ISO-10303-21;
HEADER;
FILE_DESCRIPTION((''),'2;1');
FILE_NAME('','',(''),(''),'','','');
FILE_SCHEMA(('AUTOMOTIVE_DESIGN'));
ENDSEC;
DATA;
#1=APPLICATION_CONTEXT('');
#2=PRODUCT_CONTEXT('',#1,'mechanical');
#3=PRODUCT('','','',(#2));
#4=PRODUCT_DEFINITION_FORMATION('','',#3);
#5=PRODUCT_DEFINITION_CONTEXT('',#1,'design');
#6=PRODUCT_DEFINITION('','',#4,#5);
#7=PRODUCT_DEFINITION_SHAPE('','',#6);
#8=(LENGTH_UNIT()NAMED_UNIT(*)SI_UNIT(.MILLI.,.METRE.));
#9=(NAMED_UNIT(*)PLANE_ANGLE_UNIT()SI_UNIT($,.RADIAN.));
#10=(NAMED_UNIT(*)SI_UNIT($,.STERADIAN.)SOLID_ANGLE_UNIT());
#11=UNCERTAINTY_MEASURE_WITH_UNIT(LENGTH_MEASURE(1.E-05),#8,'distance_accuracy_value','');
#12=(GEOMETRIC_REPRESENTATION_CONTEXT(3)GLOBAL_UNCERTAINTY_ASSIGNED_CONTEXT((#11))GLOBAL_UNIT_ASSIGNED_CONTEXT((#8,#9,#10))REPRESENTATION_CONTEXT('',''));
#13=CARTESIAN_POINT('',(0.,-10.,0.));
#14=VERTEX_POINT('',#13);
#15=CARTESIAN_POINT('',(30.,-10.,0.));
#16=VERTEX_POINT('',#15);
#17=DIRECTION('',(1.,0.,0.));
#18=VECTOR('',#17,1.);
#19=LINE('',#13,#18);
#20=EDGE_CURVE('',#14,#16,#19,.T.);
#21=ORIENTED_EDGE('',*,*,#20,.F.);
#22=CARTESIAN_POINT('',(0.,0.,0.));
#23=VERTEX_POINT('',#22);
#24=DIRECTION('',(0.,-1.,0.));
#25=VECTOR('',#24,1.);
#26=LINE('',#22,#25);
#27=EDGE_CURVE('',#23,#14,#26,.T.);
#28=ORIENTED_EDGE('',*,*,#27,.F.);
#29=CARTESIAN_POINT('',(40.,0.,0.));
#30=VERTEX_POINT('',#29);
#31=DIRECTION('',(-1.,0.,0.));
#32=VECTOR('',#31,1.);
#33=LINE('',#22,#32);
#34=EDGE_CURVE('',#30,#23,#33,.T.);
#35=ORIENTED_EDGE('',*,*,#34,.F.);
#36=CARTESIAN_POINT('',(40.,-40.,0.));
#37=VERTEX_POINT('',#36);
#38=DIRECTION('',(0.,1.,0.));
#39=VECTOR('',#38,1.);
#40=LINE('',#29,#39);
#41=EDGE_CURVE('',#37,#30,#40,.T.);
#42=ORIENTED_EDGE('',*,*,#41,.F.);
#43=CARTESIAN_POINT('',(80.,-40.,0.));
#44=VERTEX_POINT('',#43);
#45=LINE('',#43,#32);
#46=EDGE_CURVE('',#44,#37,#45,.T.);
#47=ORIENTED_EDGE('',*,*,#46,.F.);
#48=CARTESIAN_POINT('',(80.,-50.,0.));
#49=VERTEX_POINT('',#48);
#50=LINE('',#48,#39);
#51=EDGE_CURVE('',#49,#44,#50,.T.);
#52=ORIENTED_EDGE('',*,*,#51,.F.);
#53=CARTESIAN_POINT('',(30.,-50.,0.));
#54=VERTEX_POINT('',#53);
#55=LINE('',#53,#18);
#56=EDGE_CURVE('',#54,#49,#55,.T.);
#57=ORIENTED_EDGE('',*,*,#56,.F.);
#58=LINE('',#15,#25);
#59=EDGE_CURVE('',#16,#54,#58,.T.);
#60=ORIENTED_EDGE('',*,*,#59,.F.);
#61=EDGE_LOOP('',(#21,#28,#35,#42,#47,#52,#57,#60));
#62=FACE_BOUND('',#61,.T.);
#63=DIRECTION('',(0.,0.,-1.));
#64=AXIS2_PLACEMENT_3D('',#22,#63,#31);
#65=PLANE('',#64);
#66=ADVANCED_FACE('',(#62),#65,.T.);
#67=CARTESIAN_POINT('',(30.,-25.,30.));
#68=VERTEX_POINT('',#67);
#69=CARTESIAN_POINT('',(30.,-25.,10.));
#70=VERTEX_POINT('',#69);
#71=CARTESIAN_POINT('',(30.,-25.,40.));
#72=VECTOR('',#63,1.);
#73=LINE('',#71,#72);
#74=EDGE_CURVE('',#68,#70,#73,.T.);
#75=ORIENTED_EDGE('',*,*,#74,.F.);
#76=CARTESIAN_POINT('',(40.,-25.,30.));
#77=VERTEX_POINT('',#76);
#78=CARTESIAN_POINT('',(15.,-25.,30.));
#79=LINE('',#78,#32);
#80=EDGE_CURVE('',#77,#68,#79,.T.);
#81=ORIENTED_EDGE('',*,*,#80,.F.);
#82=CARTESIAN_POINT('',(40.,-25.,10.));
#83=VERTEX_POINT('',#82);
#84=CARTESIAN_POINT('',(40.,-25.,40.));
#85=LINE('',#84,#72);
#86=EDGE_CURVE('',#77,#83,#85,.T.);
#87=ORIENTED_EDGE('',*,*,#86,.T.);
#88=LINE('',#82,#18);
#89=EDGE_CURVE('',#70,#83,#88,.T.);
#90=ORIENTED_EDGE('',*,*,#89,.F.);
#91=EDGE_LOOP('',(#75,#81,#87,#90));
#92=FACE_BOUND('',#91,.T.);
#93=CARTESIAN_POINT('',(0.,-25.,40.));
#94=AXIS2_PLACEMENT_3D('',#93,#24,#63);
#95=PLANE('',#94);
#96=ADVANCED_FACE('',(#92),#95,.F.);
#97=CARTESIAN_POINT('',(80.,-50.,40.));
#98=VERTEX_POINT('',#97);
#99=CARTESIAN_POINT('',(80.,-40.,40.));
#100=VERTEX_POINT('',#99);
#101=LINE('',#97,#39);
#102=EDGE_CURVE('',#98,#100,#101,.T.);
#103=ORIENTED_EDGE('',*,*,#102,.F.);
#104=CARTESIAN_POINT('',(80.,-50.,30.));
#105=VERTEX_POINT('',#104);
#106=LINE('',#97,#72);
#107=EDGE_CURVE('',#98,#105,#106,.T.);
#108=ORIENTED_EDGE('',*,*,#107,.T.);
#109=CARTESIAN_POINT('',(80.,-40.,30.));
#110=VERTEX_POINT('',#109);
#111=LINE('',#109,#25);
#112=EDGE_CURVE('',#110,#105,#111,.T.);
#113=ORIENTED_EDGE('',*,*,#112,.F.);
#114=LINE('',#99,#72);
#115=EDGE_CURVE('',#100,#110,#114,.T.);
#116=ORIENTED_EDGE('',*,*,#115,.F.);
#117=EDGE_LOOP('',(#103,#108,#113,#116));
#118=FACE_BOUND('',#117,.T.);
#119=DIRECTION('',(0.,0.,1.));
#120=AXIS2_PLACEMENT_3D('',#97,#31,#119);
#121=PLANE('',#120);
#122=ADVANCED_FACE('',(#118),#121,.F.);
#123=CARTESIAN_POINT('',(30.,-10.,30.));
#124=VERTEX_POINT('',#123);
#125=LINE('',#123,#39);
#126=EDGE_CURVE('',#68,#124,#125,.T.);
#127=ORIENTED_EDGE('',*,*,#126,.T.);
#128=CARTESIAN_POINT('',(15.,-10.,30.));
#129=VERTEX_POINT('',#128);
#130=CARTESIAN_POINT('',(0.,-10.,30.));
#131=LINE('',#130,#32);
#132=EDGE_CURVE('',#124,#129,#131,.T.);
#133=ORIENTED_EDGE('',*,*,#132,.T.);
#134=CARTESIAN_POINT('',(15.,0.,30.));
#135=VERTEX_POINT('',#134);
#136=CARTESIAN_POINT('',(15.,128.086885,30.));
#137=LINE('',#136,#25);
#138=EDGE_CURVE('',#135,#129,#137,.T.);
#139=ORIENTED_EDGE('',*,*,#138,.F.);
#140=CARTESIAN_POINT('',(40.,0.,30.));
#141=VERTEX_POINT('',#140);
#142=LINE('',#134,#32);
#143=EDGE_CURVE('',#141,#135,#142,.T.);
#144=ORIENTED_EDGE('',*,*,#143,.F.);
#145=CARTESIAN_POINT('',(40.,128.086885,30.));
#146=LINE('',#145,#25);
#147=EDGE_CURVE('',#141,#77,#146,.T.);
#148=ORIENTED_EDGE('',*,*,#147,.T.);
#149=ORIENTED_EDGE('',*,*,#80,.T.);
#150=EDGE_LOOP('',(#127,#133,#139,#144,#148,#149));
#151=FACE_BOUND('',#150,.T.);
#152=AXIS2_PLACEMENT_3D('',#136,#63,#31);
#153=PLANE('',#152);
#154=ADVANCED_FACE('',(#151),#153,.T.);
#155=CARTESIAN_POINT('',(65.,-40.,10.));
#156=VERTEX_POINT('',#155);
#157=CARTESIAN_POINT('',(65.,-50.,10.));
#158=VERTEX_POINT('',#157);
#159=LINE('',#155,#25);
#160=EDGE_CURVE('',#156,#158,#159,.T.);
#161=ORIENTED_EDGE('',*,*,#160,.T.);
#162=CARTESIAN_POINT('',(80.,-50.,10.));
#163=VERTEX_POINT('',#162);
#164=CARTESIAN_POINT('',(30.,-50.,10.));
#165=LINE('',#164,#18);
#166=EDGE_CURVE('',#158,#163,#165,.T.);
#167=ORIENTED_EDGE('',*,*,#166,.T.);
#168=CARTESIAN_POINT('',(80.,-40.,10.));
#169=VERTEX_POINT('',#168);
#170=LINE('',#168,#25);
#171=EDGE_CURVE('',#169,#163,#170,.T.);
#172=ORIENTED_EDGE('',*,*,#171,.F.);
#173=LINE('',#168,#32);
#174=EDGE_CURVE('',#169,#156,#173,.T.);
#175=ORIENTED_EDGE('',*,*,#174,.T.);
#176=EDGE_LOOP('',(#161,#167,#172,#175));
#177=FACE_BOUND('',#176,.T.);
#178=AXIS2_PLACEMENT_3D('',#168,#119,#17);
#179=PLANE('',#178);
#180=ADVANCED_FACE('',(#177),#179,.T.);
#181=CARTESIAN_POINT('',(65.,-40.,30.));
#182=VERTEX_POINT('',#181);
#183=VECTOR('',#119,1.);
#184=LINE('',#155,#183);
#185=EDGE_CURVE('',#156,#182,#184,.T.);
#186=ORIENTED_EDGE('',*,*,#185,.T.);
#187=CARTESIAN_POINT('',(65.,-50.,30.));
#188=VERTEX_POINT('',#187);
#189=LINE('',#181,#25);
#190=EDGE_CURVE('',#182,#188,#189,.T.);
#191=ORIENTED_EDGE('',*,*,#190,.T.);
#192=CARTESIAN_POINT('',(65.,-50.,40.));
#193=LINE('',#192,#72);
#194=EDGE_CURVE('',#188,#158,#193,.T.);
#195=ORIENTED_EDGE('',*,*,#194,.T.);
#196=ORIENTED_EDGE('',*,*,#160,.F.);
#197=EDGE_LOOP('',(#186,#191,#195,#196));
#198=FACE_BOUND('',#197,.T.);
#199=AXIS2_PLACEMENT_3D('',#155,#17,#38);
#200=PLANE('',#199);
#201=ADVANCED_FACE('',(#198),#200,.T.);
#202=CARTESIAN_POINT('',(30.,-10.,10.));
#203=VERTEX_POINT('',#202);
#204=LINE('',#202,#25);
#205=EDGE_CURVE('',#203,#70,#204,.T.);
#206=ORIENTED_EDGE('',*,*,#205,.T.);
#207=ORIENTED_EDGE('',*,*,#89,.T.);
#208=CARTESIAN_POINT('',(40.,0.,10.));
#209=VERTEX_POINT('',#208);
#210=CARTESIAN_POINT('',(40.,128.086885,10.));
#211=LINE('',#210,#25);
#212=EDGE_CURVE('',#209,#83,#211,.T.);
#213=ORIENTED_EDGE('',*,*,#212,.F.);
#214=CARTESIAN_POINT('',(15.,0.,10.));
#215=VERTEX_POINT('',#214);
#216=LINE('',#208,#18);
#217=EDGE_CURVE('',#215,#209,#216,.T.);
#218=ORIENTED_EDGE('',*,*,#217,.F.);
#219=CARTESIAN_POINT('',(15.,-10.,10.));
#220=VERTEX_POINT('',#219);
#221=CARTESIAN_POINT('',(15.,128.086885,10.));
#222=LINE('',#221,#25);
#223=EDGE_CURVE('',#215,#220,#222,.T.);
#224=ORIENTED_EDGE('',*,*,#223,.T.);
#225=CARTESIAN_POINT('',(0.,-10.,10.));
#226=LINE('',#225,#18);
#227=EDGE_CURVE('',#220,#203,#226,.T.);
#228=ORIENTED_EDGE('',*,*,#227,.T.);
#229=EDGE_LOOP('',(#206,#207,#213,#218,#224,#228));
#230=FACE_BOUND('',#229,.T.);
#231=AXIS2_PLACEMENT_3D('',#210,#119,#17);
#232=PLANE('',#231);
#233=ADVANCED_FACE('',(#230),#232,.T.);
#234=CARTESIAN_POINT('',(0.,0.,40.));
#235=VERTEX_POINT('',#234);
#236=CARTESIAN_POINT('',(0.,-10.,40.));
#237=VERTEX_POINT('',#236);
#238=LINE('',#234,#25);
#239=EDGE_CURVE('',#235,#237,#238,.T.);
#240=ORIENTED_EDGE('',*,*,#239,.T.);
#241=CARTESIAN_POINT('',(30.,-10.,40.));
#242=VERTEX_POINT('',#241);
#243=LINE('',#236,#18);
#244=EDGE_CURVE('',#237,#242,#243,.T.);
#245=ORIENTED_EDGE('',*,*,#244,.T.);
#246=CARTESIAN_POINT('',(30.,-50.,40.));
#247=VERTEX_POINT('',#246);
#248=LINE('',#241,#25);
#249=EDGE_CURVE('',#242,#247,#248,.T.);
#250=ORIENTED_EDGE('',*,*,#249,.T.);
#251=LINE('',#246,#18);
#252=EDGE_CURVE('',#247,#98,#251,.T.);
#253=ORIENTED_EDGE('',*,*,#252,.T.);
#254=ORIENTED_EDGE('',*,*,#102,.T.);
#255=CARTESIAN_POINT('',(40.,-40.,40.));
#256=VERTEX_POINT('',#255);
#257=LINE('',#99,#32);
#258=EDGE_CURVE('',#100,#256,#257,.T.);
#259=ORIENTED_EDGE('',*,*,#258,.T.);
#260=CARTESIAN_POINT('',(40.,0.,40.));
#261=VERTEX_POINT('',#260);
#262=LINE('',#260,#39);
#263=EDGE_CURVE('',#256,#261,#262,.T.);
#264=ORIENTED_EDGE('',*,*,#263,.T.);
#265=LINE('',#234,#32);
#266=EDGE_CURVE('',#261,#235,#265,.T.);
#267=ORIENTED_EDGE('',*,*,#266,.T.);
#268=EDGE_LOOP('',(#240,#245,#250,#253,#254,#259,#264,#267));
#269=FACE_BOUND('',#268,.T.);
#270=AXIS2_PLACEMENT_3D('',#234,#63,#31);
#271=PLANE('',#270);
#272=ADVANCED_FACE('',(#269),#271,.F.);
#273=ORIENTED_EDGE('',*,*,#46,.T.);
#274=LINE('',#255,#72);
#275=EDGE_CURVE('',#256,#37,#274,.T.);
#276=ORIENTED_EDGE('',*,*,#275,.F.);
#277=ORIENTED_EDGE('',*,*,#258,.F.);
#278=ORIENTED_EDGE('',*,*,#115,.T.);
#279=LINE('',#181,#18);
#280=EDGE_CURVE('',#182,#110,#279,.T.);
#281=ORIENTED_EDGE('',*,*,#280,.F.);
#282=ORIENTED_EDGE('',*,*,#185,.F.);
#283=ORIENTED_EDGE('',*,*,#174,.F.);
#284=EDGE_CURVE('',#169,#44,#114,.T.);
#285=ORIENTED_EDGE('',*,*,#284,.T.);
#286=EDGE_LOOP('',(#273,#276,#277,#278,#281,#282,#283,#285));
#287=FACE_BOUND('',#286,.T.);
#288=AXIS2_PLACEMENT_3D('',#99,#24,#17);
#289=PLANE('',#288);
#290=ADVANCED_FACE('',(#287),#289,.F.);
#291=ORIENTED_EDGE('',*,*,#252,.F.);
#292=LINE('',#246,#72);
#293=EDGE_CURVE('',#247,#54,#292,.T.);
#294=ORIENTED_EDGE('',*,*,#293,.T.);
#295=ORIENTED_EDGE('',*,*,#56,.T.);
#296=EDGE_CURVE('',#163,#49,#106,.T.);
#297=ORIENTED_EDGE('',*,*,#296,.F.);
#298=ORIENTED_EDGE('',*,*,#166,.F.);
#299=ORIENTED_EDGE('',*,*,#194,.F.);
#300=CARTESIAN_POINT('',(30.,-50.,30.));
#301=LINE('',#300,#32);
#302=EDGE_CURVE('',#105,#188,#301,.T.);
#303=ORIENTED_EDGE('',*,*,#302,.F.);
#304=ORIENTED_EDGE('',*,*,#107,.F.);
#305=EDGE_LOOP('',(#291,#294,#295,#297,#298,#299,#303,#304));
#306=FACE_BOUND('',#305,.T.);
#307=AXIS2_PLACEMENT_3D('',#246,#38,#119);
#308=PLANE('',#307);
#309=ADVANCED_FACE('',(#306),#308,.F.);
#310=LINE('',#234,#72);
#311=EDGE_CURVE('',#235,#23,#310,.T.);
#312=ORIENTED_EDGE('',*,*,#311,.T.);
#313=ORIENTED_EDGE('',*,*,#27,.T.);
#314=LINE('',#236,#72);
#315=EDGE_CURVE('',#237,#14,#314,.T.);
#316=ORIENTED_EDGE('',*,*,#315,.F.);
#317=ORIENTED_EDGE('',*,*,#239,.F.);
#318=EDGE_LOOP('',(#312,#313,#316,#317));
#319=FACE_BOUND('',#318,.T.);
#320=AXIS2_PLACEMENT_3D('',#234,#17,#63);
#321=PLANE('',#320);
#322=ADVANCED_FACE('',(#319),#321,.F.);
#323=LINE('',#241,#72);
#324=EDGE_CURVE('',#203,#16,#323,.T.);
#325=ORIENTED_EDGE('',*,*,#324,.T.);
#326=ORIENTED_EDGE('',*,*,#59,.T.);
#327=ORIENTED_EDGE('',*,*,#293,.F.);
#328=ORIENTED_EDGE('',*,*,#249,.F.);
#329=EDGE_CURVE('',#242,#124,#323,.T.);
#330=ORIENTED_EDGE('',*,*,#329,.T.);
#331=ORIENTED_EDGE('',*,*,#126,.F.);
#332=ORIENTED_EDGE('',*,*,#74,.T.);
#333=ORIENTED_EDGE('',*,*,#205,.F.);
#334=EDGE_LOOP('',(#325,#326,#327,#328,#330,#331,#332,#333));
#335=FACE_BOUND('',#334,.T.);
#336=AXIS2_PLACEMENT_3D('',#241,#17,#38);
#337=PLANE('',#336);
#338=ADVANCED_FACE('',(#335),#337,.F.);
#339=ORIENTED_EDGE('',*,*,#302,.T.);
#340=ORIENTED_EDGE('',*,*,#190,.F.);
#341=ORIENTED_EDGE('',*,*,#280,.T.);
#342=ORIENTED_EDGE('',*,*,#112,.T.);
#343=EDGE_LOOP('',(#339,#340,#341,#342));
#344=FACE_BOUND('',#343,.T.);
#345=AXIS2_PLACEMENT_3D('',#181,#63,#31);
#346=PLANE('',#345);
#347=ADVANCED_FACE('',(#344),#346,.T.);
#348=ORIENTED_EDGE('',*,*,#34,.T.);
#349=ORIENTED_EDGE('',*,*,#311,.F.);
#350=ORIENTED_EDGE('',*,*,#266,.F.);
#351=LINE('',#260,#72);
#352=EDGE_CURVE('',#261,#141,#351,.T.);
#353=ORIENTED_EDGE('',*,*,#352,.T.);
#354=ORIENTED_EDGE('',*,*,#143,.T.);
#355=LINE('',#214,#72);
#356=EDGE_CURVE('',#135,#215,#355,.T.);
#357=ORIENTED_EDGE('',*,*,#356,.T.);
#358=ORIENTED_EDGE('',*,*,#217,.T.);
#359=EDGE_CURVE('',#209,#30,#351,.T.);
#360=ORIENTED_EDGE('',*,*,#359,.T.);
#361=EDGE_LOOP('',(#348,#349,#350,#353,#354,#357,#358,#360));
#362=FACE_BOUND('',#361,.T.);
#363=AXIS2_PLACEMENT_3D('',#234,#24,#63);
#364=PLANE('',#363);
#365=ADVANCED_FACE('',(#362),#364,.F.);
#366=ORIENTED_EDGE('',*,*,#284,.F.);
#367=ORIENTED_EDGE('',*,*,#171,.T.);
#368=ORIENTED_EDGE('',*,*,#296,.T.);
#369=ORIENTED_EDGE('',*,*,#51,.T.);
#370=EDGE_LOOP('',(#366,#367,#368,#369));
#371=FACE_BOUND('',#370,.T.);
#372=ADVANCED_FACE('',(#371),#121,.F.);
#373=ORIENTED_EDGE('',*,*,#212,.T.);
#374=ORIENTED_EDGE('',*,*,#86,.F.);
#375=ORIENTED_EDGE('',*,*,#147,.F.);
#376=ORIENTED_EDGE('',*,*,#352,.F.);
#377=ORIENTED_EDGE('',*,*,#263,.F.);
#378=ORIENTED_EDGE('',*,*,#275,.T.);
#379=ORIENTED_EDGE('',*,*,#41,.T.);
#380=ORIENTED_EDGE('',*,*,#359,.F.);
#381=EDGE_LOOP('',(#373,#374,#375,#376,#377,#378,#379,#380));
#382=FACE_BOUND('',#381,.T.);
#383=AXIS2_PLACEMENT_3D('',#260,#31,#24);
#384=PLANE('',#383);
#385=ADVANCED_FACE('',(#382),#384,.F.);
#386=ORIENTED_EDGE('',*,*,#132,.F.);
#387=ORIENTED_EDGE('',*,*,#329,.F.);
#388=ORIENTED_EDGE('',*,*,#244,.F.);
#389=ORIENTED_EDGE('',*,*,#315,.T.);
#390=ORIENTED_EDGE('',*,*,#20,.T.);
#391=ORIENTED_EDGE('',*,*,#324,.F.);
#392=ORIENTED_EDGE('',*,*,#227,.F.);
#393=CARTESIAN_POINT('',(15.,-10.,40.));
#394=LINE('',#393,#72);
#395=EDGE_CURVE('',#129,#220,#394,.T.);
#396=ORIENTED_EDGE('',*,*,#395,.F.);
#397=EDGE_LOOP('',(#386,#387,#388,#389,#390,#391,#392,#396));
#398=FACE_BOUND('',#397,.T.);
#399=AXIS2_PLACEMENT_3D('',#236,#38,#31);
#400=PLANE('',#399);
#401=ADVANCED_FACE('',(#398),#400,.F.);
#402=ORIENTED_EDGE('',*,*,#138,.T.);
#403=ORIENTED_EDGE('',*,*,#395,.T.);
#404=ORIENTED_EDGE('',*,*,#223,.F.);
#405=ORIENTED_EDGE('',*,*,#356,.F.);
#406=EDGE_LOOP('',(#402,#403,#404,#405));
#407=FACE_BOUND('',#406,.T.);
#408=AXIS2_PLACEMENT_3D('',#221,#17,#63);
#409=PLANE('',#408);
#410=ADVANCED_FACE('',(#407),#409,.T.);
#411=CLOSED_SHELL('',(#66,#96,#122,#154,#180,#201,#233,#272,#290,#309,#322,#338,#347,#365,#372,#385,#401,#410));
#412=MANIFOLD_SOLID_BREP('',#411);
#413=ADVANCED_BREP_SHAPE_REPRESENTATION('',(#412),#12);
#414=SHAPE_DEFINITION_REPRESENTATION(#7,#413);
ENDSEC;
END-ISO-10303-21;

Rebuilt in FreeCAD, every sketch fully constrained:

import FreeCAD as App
import Part
import Sketcher
from FreeCAD import Vector
Q = App.Units.Quantity


def add_polygon(sketch, points):
    """Adds a closed chain of lines whose ends are joined by coincident constraints."""
    first, n = sketch.GeometryCount, len(points)
    for a, b in zip(points, points[1:] + points[:1]):
        sketch.addGeometry(Part.LineSegment(App.Vector(*a, 0), App.Vector(*b, 0)), False)
    for i in range(n):
        sketch.addConstraint(Sketcher.Constraint("Coincident", first + i, 2, first + (i + 1) % n, 1))

doc = App.newDocument("Part")
body = doc.addObject("PartDesign::Body", "Body")

# Sketch on XY plane
sketch1 = body.newObject("Sketcher::SketchObject", "Sketch")
sketch1.AttachmentSupport = (doc.getObject("XY_Plane"), [""])
sketch1.MapMode = "FlatFace"
add_polygon(sketch1, [(0, 0), (0, -10), (30, -10), (30, -50), (80, -50), (80, -40), (40, -40), (40, 0)])  # lines 0-7
sketch1.addConstraint(Sketcher.Constraint("Vertical", 0))
sketch1.addConstraint(Sketcher.Constraint("Horizontal", 1))
sketch1.addConstraint(Sketcher.Constraint("Vertical", 2))
sketch1.addConstraint(Sketcher.Constraint("Horizontal", 3))
sketch1.addConstraint(Sketcher.Constraint("Vertical", 4))
sketch1.addConstraint(Sketcher.Constraint("Horizontal", 5))
sketch1.addConstraint(Sketcher.Constraint("Vertical", 6))
sketch1.addConstraint(Sketcher.Constraint("Horizontal", 7))
sketch1.addConstraint(Sketcher.Constraint("Coincident", 7, 2, -1, 1))
sketch1.addConstraint(Sketcher.Constraint("Equal", 5, 7))
sketch1.addConstraint(Sketcher.Constraint("Equal", 7, 2))
sketch1.addConstraint(Sketcher.Constraint("Equal", 0, 4))
sketch1.addConstraint(Sketcher.Constraint("DistanceX", 1, 1, 1, 2, Q("30 mm")))
sketch1.addConstraint(Sketcher.Constraint("DistanceX", 3, 1, 3, 2, Q("50 mm")))
sketch1.addConstraint(Sketcher.Constraint("DistanceY", 0, 2, 0, 1, Q("10 mm")))
pad1 = body.newObject("PartDesign::Pad", "Pad")
pad1.Profile = sketch1
pad1.Length = 40

# Sketch on XZ plane
sketch2 = body.newObject("Sketcher::SketchObject", "Sketch001")
sketch2.AttachmentSupport = (doc.getObject("XZ_Plane"), [""])
sketch2.MapMode = "FlatFace"
add_polygon(sketch2, [(15, 10), (15, 30), (370, 30), (370, 10)])  # lines 0-3
sketch2.addConstraint(Sketcher.Constraint("Vertical", 0))
sketch2.addConstraint(Sketcher.Constraint("Horizontal", 1))
sketch2.addConstraint(Sketcher.Constraint("Vertical", 2))
sketch2.addConstraint(Sketcher.Constraint("Horizontal", 3))
sketch2.addConstraint(Sketcher.Constraint("DistanceX", 1, 1, 1, 2, Q("355 mm")))
sketch2.addConstraint(Sketcher.Constraint("DistanceY", 0, 1, 0, 2, Q("20 mm")))
sketch2.addConstraint(Sketcher.Constraint("DistanceX", -1, 1, 0, 2, Q("15 mm")))
sketch2.addConstraint(Sketcher.Constraint("DistanceY", -1, 1, 0, 2, Q("30 mm")))
pocket1 = body.newObject("PartDesign::Pocket", "Pocket")
pocket1.Profile = sketch2
pocket1.Type = "TwoLengths"
pocket1.Length = 1
pocket1.Length2 = 25

# Sketch on XZ plane
sketch3 = body.newObject("Sketcher::SketchObject", "Sketch002")
sketch3.AttachmentSupport = (doc.getObject("XZ_Plane"), [""])
sketch3.MapMode = "FlatFace"
sketch3.AttachmentOffset = App.Placement(Vector(0, 0, 40), App.Rotation())
add_polygon(sketch3, [(65, 10), (65, 30), (623, 30), (623, 10)])  # lines 0-3
sketch3.addConstraint(Sketcher.Constraint("Vertical", 0))
sketch3.addConstraint(Sketcher.Constraint("Horizontal", 1))
sketch3.addConstraint(Sketcher.Constraint("Vertical", 2))
sketch3.addConstraint(Sketcher.Constraint("Horizontal", 3))
sketch3.addConstraint(Sketcher.Constraint("DistanceY", 0, 1, 0, 2, Q("20 mm")))
sketch3.addConstraint(Sketcher.Constraint("DistanceX", -1, 1, 0, 2, Q("65 mm")))
sketch3.addConstraint(Sketcher.Constraint("DistanceY", -1, 1, 0, 2, Q("30 mm")))
sketch3.addConstraint(Sketcher.Constraint("DistanceX", 1, 1, 1, 2, Q("557.640225 mm")))
pocket2 = body.newObject("PartDesign::Pocket", "Pocket001")
pocket2.Profile = sketch3
pocket2.Type = "ThroughAll"
pocket2.Reversed = True

doc.recompute()
